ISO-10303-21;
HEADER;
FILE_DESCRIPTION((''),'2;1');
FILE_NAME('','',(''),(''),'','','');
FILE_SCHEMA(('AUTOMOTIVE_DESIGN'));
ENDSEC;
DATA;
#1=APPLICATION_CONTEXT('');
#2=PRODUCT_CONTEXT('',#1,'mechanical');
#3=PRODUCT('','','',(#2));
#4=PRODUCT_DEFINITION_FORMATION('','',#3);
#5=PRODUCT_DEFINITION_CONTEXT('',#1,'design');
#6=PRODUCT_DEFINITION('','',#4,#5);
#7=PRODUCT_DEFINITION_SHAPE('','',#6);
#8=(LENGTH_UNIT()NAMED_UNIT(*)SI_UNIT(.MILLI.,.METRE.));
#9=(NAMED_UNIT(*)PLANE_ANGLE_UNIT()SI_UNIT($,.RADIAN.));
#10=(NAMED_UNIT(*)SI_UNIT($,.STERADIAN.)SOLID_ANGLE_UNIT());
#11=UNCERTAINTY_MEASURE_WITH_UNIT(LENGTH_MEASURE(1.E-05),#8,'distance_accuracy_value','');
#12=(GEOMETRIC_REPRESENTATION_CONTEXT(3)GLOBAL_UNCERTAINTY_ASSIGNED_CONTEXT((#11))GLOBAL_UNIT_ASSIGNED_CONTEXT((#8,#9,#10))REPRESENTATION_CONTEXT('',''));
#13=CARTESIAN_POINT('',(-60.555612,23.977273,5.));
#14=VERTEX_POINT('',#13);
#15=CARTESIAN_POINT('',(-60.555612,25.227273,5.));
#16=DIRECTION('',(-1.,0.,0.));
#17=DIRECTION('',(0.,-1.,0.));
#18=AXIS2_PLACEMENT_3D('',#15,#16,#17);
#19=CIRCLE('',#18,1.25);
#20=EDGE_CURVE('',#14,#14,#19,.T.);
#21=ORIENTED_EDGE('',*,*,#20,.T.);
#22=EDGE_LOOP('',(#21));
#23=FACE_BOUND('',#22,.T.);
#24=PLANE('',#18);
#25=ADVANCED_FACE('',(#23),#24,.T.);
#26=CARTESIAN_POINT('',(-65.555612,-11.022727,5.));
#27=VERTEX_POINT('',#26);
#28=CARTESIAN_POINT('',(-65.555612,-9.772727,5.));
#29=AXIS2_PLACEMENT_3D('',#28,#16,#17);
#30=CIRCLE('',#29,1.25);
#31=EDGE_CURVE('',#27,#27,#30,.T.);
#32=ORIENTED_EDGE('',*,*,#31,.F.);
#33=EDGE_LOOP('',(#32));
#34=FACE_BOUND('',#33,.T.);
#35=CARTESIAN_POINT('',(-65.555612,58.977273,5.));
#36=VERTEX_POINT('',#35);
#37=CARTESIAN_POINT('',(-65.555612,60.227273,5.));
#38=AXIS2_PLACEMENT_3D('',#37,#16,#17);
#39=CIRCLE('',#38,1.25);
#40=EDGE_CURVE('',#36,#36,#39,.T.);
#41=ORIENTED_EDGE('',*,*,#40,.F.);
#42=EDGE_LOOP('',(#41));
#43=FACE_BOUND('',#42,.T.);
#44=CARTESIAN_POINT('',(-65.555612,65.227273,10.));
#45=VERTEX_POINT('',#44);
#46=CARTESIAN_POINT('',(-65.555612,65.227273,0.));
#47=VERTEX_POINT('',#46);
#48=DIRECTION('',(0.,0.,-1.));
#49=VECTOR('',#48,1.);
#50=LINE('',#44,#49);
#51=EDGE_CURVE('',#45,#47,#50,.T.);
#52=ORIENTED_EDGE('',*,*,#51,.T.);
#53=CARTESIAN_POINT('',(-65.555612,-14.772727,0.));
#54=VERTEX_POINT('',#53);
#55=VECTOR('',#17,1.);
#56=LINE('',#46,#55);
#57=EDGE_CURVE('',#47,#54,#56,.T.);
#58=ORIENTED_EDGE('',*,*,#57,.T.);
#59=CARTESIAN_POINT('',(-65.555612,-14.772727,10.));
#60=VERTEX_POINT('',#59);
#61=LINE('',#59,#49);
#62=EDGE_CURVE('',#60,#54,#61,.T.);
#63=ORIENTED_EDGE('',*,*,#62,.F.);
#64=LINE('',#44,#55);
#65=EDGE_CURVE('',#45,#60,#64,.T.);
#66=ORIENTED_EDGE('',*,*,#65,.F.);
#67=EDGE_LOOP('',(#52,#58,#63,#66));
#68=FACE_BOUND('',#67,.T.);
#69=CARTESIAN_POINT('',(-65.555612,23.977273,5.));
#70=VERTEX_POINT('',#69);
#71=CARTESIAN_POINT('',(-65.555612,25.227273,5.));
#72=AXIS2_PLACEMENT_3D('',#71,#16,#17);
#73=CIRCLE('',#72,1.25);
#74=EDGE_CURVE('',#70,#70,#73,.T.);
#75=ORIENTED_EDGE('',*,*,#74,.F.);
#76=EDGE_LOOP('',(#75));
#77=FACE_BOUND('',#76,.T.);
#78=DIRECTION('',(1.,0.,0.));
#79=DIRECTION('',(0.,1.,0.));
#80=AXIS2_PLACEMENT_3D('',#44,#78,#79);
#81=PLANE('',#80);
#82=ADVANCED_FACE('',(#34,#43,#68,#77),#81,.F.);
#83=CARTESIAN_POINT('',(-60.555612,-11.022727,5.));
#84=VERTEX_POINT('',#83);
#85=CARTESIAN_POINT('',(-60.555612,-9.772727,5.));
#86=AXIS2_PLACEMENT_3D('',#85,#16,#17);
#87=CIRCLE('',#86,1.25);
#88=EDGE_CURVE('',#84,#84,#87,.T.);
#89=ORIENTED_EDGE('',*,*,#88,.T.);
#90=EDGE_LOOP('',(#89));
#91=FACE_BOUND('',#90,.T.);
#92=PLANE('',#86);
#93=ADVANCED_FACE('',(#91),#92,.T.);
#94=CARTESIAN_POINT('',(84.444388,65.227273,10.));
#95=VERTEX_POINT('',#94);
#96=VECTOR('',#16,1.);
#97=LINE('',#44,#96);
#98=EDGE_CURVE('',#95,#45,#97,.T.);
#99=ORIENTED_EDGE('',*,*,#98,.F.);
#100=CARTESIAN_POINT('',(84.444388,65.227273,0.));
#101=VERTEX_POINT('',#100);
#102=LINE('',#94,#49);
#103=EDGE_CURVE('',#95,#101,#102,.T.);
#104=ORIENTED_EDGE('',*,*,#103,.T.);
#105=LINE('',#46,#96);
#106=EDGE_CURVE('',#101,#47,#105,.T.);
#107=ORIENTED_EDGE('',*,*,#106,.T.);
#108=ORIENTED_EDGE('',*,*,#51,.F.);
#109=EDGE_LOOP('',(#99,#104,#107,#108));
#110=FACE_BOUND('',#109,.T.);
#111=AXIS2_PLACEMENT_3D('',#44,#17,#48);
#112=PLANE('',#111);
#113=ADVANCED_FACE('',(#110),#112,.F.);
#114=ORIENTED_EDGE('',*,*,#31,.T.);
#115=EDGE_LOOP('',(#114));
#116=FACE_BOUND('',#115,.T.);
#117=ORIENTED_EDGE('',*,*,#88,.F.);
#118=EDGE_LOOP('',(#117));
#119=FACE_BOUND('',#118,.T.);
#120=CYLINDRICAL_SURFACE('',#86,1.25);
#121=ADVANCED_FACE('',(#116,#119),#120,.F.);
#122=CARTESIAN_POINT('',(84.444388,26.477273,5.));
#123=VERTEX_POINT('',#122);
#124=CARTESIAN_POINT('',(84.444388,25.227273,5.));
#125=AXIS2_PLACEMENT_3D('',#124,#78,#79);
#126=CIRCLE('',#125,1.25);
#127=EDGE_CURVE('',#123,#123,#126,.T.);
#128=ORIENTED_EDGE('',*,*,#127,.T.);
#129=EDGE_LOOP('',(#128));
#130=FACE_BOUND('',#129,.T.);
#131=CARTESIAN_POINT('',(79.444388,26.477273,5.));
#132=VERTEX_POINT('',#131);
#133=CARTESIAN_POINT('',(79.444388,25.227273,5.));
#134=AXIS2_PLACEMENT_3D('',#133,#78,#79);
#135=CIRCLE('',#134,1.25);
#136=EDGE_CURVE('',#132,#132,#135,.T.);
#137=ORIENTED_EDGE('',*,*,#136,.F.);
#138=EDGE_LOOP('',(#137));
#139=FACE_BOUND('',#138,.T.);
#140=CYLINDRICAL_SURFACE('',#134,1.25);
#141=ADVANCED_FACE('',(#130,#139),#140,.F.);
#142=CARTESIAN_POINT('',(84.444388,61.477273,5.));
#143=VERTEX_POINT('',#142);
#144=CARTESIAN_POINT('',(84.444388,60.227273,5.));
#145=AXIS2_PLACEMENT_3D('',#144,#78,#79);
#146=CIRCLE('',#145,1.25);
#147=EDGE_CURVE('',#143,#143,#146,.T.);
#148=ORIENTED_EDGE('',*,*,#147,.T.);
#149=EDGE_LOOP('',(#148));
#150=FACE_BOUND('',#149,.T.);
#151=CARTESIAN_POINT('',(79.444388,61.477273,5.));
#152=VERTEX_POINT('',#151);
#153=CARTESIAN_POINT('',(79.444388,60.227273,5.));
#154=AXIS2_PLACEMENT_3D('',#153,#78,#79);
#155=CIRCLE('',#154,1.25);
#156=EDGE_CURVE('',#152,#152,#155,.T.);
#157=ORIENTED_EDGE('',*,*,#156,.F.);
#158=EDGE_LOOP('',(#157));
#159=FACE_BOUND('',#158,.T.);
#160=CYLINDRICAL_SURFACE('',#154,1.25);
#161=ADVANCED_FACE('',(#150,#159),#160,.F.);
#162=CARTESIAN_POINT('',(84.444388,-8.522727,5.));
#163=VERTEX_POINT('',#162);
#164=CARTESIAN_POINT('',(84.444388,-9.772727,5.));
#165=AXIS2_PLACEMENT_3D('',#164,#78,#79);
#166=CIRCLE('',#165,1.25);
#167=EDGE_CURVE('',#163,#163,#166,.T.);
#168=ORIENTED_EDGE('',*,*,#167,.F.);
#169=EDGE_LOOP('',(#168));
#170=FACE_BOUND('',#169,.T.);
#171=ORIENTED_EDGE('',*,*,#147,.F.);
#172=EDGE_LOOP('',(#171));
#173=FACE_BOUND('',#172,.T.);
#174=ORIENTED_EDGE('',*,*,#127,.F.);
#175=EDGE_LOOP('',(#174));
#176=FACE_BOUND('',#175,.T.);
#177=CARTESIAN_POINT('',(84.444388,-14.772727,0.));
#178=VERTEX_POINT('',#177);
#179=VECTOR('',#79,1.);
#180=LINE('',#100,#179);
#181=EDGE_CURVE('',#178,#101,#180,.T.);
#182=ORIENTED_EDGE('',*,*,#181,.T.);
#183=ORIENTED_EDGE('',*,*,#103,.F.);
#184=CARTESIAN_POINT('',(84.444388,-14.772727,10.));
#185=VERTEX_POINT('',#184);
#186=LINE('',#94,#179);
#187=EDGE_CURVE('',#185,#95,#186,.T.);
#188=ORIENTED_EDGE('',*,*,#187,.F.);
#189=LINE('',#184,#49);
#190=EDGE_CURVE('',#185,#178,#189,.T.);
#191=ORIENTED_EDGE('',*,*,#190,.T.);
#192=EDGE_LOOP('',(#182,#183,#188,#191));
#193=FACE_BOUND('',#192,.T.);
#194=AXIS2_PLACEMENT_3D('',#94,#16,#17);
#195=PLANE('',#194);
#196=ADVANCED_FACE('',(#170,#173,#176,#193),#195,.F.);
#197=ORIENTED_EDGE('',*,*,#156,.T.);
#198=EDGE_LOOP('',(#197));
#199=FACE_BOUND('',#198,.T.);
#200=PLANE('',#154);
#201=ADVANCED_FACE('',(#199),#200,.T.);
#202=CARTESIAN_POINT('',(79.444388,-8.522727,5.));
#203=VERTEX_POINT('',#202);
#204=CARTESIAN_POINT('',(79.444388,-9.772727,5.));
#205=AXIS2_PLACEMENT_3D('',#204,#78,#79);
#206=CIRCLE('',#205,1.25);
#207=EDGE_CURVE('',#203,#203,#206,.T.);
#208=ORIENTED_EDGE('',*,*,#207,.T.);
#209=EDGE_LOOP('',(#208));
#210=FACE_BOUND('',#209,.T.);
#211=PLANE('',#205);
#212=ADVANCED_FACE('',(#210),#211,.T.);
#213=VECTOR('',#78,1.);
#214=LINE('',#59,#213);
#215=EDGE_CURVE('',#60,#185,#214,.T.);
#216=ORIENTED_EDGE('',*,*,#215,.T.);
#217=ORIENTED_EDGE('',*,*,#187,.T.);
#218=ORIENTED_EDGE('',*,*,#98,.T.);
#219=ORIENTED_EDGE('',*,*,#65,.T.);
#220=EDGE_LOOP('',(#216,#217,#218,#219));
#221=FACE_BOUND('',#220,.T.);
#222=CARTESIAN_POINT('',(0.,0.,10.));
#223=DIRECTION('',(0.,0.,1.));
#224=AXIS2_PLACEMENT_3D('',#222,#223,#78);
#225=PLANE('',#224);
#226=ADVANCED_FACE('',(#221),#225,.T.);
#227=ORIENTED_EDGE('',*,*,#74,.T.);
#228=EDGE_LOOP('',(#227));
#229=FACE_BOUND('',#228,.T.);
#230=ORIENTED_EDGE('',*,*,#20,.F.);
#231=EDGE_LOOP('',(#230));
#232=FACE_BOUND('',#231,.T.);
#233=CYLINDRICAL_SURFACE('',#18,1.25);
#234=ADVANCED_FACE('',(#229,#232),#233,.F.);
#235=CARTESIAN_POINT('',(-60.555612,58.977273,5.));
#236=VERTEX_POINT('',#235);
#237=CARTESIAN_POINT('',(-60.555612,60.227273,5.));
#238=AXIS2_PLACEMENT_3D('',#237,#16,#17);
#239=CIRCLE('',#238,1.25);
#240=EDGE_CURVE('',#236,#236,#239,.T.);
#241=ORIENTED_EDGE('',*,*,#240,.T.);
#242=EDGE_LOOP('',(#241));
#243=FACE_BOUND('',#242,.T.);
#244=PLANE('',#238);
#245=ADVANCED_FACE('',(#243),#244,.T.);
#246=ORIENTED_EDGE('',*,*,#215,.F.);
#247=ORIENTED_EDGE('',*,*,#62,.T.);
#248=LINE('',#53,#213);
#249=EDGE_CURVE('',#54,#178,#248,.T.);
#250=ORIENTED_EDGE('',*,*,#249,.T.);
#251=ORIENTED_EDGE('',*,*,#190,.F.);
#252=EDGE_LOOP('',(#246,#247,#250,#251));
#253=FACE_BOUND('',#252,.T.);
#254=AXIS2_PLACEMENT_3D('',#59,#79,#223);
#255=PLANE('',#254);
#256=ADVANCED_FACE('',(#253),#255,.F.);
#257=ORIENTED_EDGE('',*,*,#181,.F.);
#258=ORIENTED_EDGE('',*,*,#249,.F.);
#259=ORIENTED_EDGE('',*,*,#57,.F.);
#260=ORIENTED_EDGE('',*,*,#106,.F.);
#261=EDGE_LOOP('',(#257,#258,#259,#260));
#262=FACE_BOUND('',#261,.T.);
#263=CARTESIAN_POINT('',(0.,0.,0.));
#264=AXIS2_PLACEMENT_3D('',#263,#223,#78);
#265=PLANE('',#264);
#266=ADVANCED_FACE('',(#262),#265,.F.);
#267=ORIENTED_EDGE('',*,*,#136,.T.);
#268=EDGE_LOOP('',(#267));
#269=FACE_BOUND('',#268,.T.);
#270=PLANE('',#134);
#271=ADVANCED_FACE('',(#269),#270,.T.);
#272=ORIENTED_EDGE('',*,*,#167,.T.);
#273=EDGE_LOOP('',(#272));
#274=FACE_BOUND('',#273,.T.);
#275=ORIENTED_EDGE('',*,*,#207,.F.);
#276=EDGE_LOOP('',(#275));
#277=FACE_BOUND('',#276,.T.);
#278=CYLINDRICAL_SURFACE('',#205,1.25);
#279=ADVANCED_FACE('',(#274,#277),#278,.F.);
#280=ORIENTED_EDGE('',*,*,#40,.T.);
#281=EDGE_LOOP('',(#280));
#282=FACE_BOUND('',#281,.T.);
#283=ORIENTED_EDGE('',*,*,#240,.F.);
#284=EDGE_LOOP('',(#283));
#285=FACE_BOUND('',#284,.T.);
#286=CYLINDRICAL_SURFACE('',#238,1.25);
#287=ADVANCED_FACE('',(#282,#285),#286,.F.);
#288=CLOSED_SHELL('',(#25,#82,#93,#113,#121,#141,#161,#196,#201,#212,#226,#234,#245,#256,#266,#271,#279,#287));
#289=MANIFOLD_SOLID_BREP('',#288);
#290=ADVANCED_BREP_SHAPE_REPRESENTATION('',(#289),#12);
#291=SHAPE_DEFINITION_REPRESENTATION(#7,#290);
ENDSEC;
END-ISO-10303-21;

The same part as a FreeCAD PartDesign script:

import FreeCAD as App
import Part
import Sketcher
from FreeCAD import Vector

doc = App.newDocument("Part")
body = doc.addObject("PartDesign::Body", "Body")

sketch1 = body.newObject("Sketcher::SketchObject", "Sketch")
sketch1.AttachmentSupport = (doc.getObject("XY_Plane"), [""])
sketch1.MapMode = "FlatFace"
sketch1.addGeometry([
    Part.LineSegment(Vector(-66, 65, 0), Vector(-66, -15, 0)),
    Part.LineSegment(Vector(-66, -15, 0), Vector(84, -15, 0)),
    Part.LineSegment(Vector(84, -15, 0), Vector(84, 65, 0)),
    Part.LineSegment(Vector(84, 65, 0), Vector(-66, 65, 0)),
], False)
sketch1.addConstraint([
    Sketcher.Constraint("Coincident", 0, 2, 1, 1),
    Sketcher.Constraint("Coincident", 1, 2, 2, 1),
    Sketcher.Constraint("Coincident", 2, 2, 3, 1),
    Sketcher.Constraint("Coincident", 3, 2, 0, 1),
    Sketcher.Constraint("Vertical", 0),
    Sketcher.Constraint("Horizontal", 1),
    Sketcher.Constraint("Vertical", 2),
    Sketcher.Constraint("Horizontal", 3),
    Sketcher.Constraint("DistanceX", 1, 1, 1, 2, 150.0),
    Sketcher.Constraint("DistanceY", 0, 2, 0, 1, 80.0),
    Sketcher.Constraint("DistanceX", 0, 2, -1, 1, 65.555612),
    Sketcher.Constraint("DistanceY", 0, 2, -1, 1, 14.772727),
])
pad1 = body.newObject("PartDesign::Pad", "Pad")
pad1.Profile = sketch1
pad1.Length = 10

sketch2 = body.newObject("Sketcher::SketchObject", "Sketch001")
sketch2.AttachmentSupport = (doc.getObject("YZ_Plane"), [""])
sketch2.MapMode = "FlatFace"
sketch2.AttachmentOffset = App.Placement(Vector(0, 0, -65.555612), App.Rotation())
sketch2.addGeometry([
    Part.Circle(Vector(60.2, 5, 0), Vector(0, 0, 1), 1.2),
    Part.Circle(Vector(25.2, 5, 0), Vector(0, 0, 1), 1.2),
    Part.Circle(Vector(-9.8, 5, 0), Vector(0, 0, 1), 1.2),
], False)
sketch2.addConstraint([
    Sketcher.Constraint("Equal", 0, 1),
    Sketcher.Constraint("Equal", 1, 2),
    Sketcher.Constraint("Horizontal", 0, 3, 1, 3),
    Sketcher.Constraint("Horizontal", 1, 3, 2, 3),
    Sketcher.Constraint("Diameter", 0, 2.5),
    Sketcher.Constraint("DistanceY", -1, 1, 0, 3, 5.0),
    Sketcher.Constraint("DistanceX", 1, 3, 0, 3, 35.0),
    Sketcher.Constraint("DistanceX", 2, 3, 1, 3, 35.0),
    Sketcher.Constraint("DistanceX", -1, 1, 0, 3, 60.227273),
])
pocket1 = body.newObject("PartDesign::Pocket", "Pocket")
pocket1.Profile = sketch2
pocket1.Length = 5
pocket1.Reversed = True

sketch3 = body.newObject("Sketcher::SketchObject", "Sketch002")
sketch3.AttachmentSupport = (doc.getObject("YZ_Plane"), [""])
sketch3.MapMode = "FlatFace"
sketch3.AttachmentOffset = App.Placement(Vector(0, 0, 79.444388), App.Rotation())
sketch3.addGeometry([
    Part.Circle(Vector(60.2, 5, 0), Vector(0, 0, 1), 1.2),
    Part.Circle(Vector(25.2, 5, 0), Vector(0, 0, 1), 1.2),
    Part.Circle(Vector(-9.8, 5, 0), Vector(0, 0, 1), 1.2),
], False)
sketch3.addConstraint([
    Sketcher.Constraint("Equal", 0, 1),
    Sketcher.Constraint("Equal", 1, 2),
    Sketcher.Constraint("Horizontal", 0, 3, 1, 3),
    Sketcher.Constraint("Horizontal", 1, 3, 2, 3),
    Sketcher.Constraint("Diameter", 0, 2.5),
    Sketcher.Constraint("DistanceY", -1, 1, 0, 3, 5.0),
    Sketcher.Constraint("DistanceX", 1, 3, 0, 3, 35.0),
    Sketcher.Constraint("DistanceX", 2, 3, 1, 3, 35.0),
    Sketcher.Constraint("DistanceX", -1, 1, 0, 3, 60.227273),
])
pocket2 = body.newObject("PartDesign::Pocket", "Pocket001")
pocket2.Profile = sketch3
pocket2.Length = 5
pocket2.Reversed = True

doc.recompute()
